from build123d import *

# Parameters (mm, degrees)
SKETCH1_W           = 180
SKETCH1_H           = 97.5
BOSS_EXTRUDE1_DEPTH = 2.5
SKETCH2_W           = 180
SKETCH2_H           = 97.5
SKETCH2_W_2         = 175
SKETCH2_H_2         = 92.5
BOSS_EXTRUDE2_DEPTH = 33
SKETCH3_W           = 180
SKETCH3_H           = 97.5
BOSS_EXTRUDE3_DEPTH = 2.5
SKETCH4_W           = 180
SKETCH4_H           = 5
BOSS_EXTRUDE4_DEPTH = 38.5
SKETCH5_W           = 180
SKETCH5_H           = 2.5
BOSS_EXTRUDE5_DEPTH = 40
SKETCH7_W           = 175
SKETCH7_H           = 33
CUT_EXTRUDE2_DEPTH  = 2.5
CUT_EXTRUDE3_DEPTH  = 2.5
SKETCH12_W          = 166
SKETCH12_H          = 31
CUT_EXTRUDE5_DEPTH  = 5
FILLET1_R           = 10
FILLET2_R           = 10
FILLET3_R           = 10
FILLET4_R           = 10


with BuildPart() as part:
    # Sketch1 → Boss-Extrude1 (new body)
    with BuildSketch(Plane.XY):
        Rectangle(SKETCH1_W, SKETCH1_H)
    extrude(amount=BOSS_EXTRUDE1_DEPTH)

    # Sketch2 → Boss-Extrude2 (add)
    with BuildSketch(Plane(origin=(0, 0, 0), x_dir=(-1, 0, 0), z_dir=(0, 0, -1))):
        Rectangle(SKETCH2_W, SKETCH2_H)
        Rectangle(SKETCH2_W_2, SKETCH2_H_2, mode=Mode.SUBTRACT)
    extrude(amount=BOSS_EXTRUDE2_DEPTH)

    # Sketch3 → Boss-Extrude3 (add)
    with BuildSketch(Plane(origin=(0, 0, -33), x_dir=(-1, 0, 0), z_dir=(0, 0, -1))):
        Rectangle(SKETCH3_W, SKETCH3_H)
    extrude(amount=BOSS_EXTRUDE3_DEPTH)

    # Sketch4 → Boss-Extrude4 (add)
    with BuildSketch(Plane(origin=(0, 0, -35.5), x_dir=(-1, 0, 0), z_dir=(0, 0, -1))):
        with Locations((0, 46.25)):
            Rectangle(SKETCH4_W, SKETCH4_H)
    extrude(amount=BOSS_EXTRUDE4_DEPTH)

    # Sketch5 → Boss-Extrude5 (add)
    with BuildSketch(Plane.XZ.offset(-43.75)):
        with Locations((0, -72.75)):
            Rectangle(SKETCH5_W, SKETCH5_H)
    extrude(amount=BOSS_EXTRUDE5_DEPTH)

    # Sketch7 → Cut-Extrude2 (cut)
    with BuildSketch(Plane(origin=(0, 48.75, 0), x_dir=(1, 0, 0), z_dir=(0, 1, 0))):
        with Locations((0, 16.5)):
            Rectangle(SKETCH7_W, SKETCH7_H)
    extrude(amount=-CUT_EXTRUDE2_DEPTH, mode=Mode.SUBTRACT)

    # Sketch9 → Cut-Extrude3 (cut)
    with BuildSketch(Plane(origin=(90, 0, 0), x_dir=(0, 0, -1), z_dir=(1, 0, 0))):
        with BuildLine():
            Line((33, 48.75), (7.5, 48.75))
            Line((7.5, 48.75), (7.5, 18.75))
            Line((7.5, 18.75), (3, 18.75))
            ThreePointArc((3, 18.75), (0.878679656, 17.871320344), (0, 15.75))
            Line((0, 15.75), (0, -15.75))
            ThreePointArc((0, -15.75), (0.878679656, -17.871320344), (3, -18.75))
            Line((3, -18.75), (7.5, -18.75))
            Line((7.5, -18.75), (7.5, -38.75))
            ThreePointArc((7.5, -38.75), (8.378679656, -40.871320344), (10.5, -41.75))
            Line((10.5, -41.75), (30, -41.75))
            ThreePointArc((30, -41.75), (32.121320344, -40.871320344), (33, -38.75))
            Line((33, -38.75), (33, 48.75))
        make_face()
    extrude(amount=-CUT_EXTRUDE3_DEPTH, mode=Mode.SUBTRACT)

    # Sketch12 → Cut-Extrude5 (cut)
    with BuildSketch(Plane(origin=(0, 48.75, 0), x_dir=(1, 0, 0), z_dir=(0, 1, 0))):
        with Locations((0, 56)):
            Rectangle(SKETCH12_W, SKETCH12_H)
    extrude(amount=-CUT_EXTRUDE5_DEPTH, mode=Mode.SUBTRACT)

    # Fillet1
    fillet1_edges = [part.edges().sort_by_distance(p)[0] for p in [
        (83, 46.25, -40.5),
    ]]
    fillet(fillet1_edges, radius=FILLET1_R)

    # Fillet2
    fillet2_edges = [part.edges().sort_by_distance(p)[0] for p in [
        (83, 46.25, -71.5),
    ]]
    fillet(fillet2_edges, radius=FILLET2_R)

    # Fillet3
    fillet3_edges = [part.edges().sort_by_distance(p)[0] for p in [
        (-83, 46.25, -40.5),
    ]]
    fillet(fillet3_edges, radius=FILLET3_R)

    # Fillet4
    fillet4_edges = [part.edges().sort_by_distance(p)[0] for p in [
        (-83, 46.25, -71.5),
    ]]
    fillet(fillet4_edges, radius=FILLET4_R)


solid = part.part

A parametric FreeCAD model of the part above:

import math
import FreeCAD as App
import Part
import Sketcher
from FreeCAD import Vector
Q = App.Units.Quantity


def edges_at(feature, points):
    """Names of the edges that pass closest to the given points."""
    edges = feature.Shape.Edges
    near = lambda p: min(range(len(edges)), key=lambda i: edges[i].distToShape(Part.Vertex(*p))[0])
    return sorted({f"Edge{near(p) + 1}" for p in points})


def add_polygon(sketch, points):
    """Adds a closed chain of lines whose ends are joined by coincident constraints."""
    first, n = sketch.GeometryCount, len(points)
    for a, b in zip(points, points[1:] + points[:1]):
        sketch.addGeometry(Part.LineSegment(App.Vector(*a, 0), App.Vector(*b, 0)), False)
    for i in range(n):
        sketch.addConstraint(Sketcher.Constraint("Coincident", first + i, 2, first + (i + 1) % n, 1))

doc = App.newDocument("Part")
body = doc.addObject("PartDesign::Body", "Body")

# Sketch on XY plane
sketch1 = body.newObject("Sketcher::SketchObject", "Sketch")
sketch1.AttachmentSupport = (doc.getObject("XY_Plane"), [""])
sketch1.MapMode = "FlatFace"
add_polygon(sketch1, [(-90, 49), (-90, -49), (90, -49), (90, 49)])  # lines 0-3
sketch1.addConstraint(Sketcher.Constraint("Vertical", 0))
sketch1.addConstraint(Sketcher.Constraint("Horizontal", 1))
sketch1.addConstraint(Sketcher.Constraint("Vertical", 2))
sketch1.addConstraint(Sketcher.Constraint("Horizontal", 3))
sketch1.addConstraint(Sketcher.Constraint("Symmetric", 0, 2, 2, 2, -1, 1))
sketch1.addConstraint(Sketcher.Constraint("DistanceX", 1, 1, 1, 2, Q("180 mm")))
sketch1.addConstraint(Sketcher.Constraint("DistanceY", 0, 2, 0, 1, Q("97.5 mm")))
pad1 = body.newObject("PartDesign::Pad", "Pad")
pad1.Profile = sketch1
pad1.Length = 2.5

# Sketch on XY plane
sketch2 = body.newObject("Sketcher::SketchObject", "Sketch001")
sketch2.AttachmentSupport = (doc.getObject("XY_Plane"), [""])
sketch2.MapMode = "FlatFace"
add_polygon(sketch2, [(90, 49), (90, -49), (-90, -49), (-90, 49)])  # lines 0-3
add_polygon(sketch2, [(-88, -46), (88, -46), (88, 46), (-88, 46)])  # lines 4-7
sketch2.addConstraint(Sketcher.Constraint("Vertical", 0))
sketch2.addConstraint(Sketcher.Constraint("Horizontal", 1))
sketch2.addConstraint(Sketcher.Constraint("Vertical", 2))
sketch2.addConstraint(Sketcher.Constraint("Horizontal", 3))
sketch2.addConstraint(Sketcher.Constraint("Horizontal", 4))
sketch2.addConstraint(Sketcher.Constraint("Vertical", 5))
sketch2.addConstraint(Sketcher.Constraint("Horizontal", 6))
sketch2.addConstraint(Sketcher.Constraint("Vertical", 7))
sketch2.addConstraint(Sketcher.Constraint("Symmetric", 0, 2, 2, 2, -1, 1))
sketch2.addConstraint(Sketcher.Constraint("Symmetric", 4, 2, 6, 2, -1, 1))
sketch2.addConstraint(Sketcher.Constraint("DistanceX", 1, 2, 1, 1, Q("180 mm")))
sketch2.addConstraint(Sketcher.Constraint("DistanceX", 4, 1, 4, 2, Q("175 mm")))
sketch2.addConstraint(Sketcher.Constraint("DistanceY", 0, 2, 0, 1, Q("97.5 mm")))
sketch2.addConstraint(Sketcher.Constraint("DistanceY", 5, 1, 5, 2, Q("92.5 mm")))
pad2 = body.newObject("PartDesign::Pad", "Pad001")
pad2.Profile = sketch2
pad2.Length = 33
pad2.Reversed = True

# Sketch on XY plane
sketch3 = body.newObject("Sketcher::SketchObject", "Sketch002")
sketch3.AttachmentSupport = (doc.getObject("XY_Plane"), [""])
sketch3.MapMode = "FlatFace"
sketch3.AttachmentOffset = App.Placement(Vector(0, 0, -33), App.Rotation())
add_polygon(sketch3, [(90, 49), (90, -49), (-90, -49), (-90, 49)])  # lines 0-3
sketch3.addConstraint(Sketcher.Constraint("Vertical", 0))
sketch3.addConstraint(Sketcher.Constraint("Horizontal", 1))
sketch3.addConstraint(Sketcher.Constraint("Vertical", 2))
sketch3.addConstraint(Sketcher.Constraint("Horizontal", 3))
sketch3.addConstraint(Sketcher.Constraint("Symmetric", 0, 2, 2, 2, -1, 1))
sketch3.addConstraint(Sketcher.Constraint("DistanceX", 1, 2, 1, 1, Q("180 mm")))
sketch3.addConstraint(Sketcher.Constraint("DistanceY", 0, 2, 0, 1, Q("97.5 mm")))
pad3 = body.newObject("PartDesign::Pad", "Pad002")
pad3.Profile = sketch3
pad3.Length = 2.5
pad3.Reversed = True

# Sketch on XY plane
sketch4 = body.newObject("Sketcher::SketchObject", "Sketch003")
sketch4.AttachmentSupport = (doc.getObject("XY_Plane"), [""])
sketch4.MapMode = "FlatFace"
sketch4.AttachmentOffset = App.Placement(Vector(0, 0, -35.5), App.Rotation())
add_polygon(sketch4, [(90, 49), (90, 44), (-90, 44), (-90, 49)])  # lines 0-3
sketch4.addConstraint(Sketcher.Constraint("Vertical", 0))
sketch4.addConstraint(Sketcher.Constraint("Horizontal", 1))
sketch4.addConstraint(Sketcher.Constraint("Vertical", 2))
sketch4.addConstraint(Sketcher.Constraint("Horizontal", 3))
sketch4.addConstraint(Sketcher.Constraint("DistanceX", 1, 2, 1, 1, Q("180 mm")))
sketch4.addConstraint(Sketcher.Constraint("DistanceY", 0, 2, 0, 1, Q("5 mm")))
sketch4.addConstraint(Sketcher.Constraint("DistanceX", -1, 1, 0, 2, Q("90 mm")))
sketch4.addConstraint(Sketcher.Constraint("DistanceY", -1, 1, 0, 2, Q("43.75 mm")))
pad4 = body.newObject("PartDesign::Pad", "Pad003")
pad4.Profile = sketch4
pad4.Length = 38.5
pad4.Reversed = True

# Sketch on XZ plane
sketch5 = body.newObject("Sketcher::SketchObject", "Sketch004")
sketch5.AttachmentSupport = (doc.getObject("XZ_Plane"), [""])
sketch5.MapMode = "FlatFace"
sketch5.AttachmentOffset = App.Placement(Vector(0, 0, -43.75), App.Rotation())
add_polygon(sketch5, [(-90, -71.5), (-90, -74), (90, -74), (90, -71.5)])  # lines 0-3
sketch5.addConstraint(Sketcher.Constraint("Vertical", 0))
sketch5.addConstraint(Sketcher.Constraint("Horizontal", 1))
sketch5.addConstraint(Sketcher.Constraint("Vertical", 2))
sketch5.addConstraint(Sketcher.Constraint("Horizontal", 3))
sketch5.addConstraint(Sketcher.Constraint("DistanceX", 1, 1, 1, 2, Q("180 mm")))
sketch5.addConstraint(Sketcher.Constraint("DistanceY", 0, 2, 0, 1, Q("2.5 mm")))
sketch5.addConstraint(Sketcher.Constraint("DistanceX", 0, 2, -1, 1, Q("90 mm")))
sketch5.addConstraint(Sketcher.Constraint("DistanceY", 0, 2, -1, 1, Q("74 mm")))
pad5 = body.newObject("PartDesign::Pad", "Pad004")
pad5.Profile = sketch5
pad5.Length = 40

# Sketch on XZ plane
sketch6 = body.newObject("Sketcher::SketchObject", "Sketch005")
sketch6.AttachmentSupport = (doc.getObject("XZ_Plane"), [""])
sketch6.MapMode = "FlatFace"
sketch6.AttachmentOffset = App.Placement(Vector(0, 0, -48.75), App.Rotation())
add_polygon(sketch6, [(-88, -33), (-88, 0), (88, 0), (88, -33)])  # lines 0-3
sketch6.addConstraint(Sketcher.Constraint("Vertical", 0))
sketch6.addConstraint(Sketcher.Constraint("Horizontal", 1))
sketch6.addConstraint(Sketcher.Constraint("Vertical", 2))
sketch6.addConstraint(Sketcher.Constraint("Horizontal", 3))
sketch6.addConstraint(Sketcher.Constraint("Symmetric", 0, 2, 1, 2, -1, 1))
sketch6.addConstraint(Sketcher.Constraint("DistanceX", 1, 1, 1, 2, Q("175 mm")))
sketch6.addConstraint(Sketcher.Constraint("DistanceY", 0, 1, 0, 2, Q("33 mm")))
pocket1 = body.newObject("PartDesign::Pocket", "Pocket")
pocket1.Profile = sketch6
pocket1.Length = 2.5
pocket1.Reversed = True

# Sketch on YZ plane
sketch7 = body.newObject("Sketcher::SketchObject", "Sketch006")
sketch7.AttachmentSupport = (doc.getObject("YZ_Plane"), [""])
sketch7.MapMode = "FlatFace"
sketch7.AttachmentOffset = App.Placement(Vector(0, 0, 90), App.Rotation())
sketch7.addGeometry(Part.LineSegment(Vector(48.8, -33, 0), Vector(48.8, -7.5, 0)), False)
sketch7.addGeometry(Part.LineSegment(Vector(48.8, -7.5, 0), Vector(18.8, -7.5, 0)), False)
sketch7.addGeometry(Part.LineSegment(Vector(18.8, -7.5, 0), Vector(18.8, -3, 0)), False)
sketch7.addGeometry(Part.ArcOfCircle(Part.Circle(Vector(15.8, -3, 0), Vector(0, 0, 1), 3), math.radians(0), math.radians(90)), False)
sketch7.addGeometry(Part.LineSegment(Vector(15.8, 0, 0), Vector(-15.8, 0, 0)), False)
sketch7.addGeometry(Part.ArcOfCircle(Part.Circle(Vector(-15.8, -3, 0), Vector(0, 0, 1), 3), math.radians(90), math.radians(180)), False)
sketch7.addGeometry(Part.LineSegment(Vector(-18.8, -3, 0), Vector(-18.8, -7.5, 0)), False)
sketch7.addGeometry(Part.LineSegment(Vector(-18.8, -7.5, 0), Vector(-38.8, -7.5, 0)), False)
sketch7.addGeometry(Part.ArcOfCircle(Part.Circle(Vector(-38.8, -10.5, 0), Vector(0, 0, 1), 3), math.radians(90), math.radians(180)), False)
sketch7.addGeometry(Part.LineSegment(Vector(-41.8, -10.5, 0), Vector(-41.8, -30, 0)), False)
sketch7.addGeometry(Part.ArcOfCircle(Part.Circle(Vector(-38.8, -30, 0), Vector(0, 0, 1), 3), math.radians(180), math.radians(270)), False)
sketch7.addGeometry(Part.LineSegment(Vector(-38.8, -33, 0), Vector(48.8, -33, 0)), False)
sketch7.addConstraint(Sketcher.Constraint("Coincident", 0, 2, 1, 1))
sketch7.addConstraint(Sketcher.Constraint("Coincident", 1, 2, 2, 1))
sketch7.addConstraint(Sketcher.Constraint("Tangent", 2, 2, 3, 1))
sketch7.addConstraint(Sketcher.Constraint("Tangent", 3, 2, 4, 1))
sketch7.addConstraint(Sketcher.Constraint("Tangent", 4, 2, 5, 1))
sketch7.addConstraint(Sketcher.Constraint("Tangent", 5, 2, 6, 1))
sketch7.addConstraint(Sketcher.Constraint("Coincident", 6, 2, 7, 1))
sketch7.addConstraint(Sketcher.Constraint("Tangent", 7, 2, 8, 1))
sketch7.addConstraint(Sketcher.Constraint("Tangent", 8, 2, 9, 1))
sketch7.addConstraint(Sketcher.Constraint("Tangent", 9, 2, 10, 1))
sketch7.addConstraint(Sketcher.Constraint("Tangent", 10, 2, 11, 1))
sketch7.addConstraint(Sketcher.Constraint("Coincident", 11, 2, 0, 1))
sketch7.addConstraint(Sketcher.Constraint("Vertical", 0))
sketch7.addConstraint(Sketcher.Constraint("Horizontal", 1))
sketch7.addConstraint(Sketcher.Constraint("Vertical", 2))
sketch7.addConstraint(Sketcher.Constraint("Horizontal", 4))
sketch7.addConstraint(Sketcher.Constraint("Vertical", 6))
sketch7.addConstraint(Sketcher.Constraint("Horizontal", 7))
sketch7.addConstraint(Sketcher.Constraint("Vertical", 9))
sketch7.addConstraint(Sketcher.Constraint("Horizontal", 11))
sketch7.addConstraint(Sketcher.Constraint("Equal", 3, 5))
sketch7.addConstraint(Sketcher.Constraint("Equal", 5, 8))
sketch7.addConstraint(Sketcher.Constraint("Equal", 8, 10))
sketch7.addConstraint(Sketcher.Constraint("Symmetric", 3, 2, 4, 2, -1, 1))
sketch7.addConstraint(Sketcher.Constraint("Horizontal", 1, 2, 6, 2))
sketch7.addConstraint(Sketcher.Constraint("Radius", 3, Q("3 mm")))
sketch7.addConstraint(Sketcher.Constraint("DistanceX", 1, 2, 1, 1, Q("30 mm")))
sketch7.addConstraint(Sketcher.Constraint("DistanceX", 7, 2, 7, 1, Q("20 mm")))
sketch7.addConstraint(Sketcher.Constraint("DistanceX", 4, 2, 4, 1, Q("31.5 mm")))
sketch7.addConstraint(Sketcher.Constraint("DistanceY", 0, 1, 0, 2, Q("25.5 mm")))
sketch7.addConstraint(Sketcher.Constraint("DistanceY", 2, 1, 2, 2, Q("4.5 mm")))
pocket2 = body.newObject("PartDesign::Pocket", "Pocket001")
pocket2.Profile = sketch7
pocket2.Length = 2.5

# Sketch on XZ plane
sketch8 = body.newObject("Sketcher::SketchObject", "Sketch007")
sketch8.AttachmentSupport = (doc.getObject("XZ_Plane"), [""])
sketch8.MapMode = "FlatFace"
sketch8.AttachmentOffset = App.Placement(Vector(0, 0, -48.75), App.Rotation())
add_polygon(sketch8, [(-83, -72), (-83, -40), (83, -40), (83, -72)])  # lines 0-3
sketch8.addConstraint(Sketcher.Constraint("Vertical", 0))
sketch8.addConstraint(Sketcher.Constraint("Horizontal", 1))
sketch8.addConstraint(Sketcher.Constraint("Vertical", 2))
sketch8.addConstraint(Sketcher.Constraint("Horizontal", 3))
sketch8.addConstraint(Sketcher.Constraint("DistanceX", 1, 1, 1, 2, Q("166 mm")))
sketch8.addConstraint(Sketcher.Constraint("DistanceY", 0, 1, 0, 2, Q("31 mm")))
sketch8.addConstraint(Sketcher.Constraint("DistanceX", 0, 2, -1, 1, Q("83 mm")))
sketch8.addConstraint(Sketcher.Constraint("DistanceY", 0, 2, -1, 1, Q("40.5 mm")))
pocket3 = body.newObject("PartDesign::Pocket", "Pocket002")
pocket3.Profile = sketch8
pocket3.Length = 5
pocket3.Reversed = True
doc.recompute()

fillet = body.newObject("PartDesign::Fillet", "Fillet")
fillet.Base = (pocket3, edges_at(pocket3, [(83, 46.25, -40.5)]))
fillet.Radius = 10
doc.recompute()

fillet2 = body.newObject("PartDesign::Fillet", "Fillet001")
fillet2.Base = (fillet, edges_at(fillet, [(83, 46.25, -71.5)]))
fillet2.Radius = 10
doc.recompute()

fillet3 = body.newObject("PartDesign::Fillet", "Fillet002")
fillet3.Base = (fillet2, edges_at(fillet2, [(-83, 46.25, -40.5)]))
fillet3.Radius = 10
doc.recompute()

fillet4 = body.newObject("PartDesign::Fillet", "Fillet003")
fillet4.Base = (fillet3, edges_at(fillet3, [(-83, 46.25, -71.5)]))
fillet4.Radius = 10

doc.recompute()
